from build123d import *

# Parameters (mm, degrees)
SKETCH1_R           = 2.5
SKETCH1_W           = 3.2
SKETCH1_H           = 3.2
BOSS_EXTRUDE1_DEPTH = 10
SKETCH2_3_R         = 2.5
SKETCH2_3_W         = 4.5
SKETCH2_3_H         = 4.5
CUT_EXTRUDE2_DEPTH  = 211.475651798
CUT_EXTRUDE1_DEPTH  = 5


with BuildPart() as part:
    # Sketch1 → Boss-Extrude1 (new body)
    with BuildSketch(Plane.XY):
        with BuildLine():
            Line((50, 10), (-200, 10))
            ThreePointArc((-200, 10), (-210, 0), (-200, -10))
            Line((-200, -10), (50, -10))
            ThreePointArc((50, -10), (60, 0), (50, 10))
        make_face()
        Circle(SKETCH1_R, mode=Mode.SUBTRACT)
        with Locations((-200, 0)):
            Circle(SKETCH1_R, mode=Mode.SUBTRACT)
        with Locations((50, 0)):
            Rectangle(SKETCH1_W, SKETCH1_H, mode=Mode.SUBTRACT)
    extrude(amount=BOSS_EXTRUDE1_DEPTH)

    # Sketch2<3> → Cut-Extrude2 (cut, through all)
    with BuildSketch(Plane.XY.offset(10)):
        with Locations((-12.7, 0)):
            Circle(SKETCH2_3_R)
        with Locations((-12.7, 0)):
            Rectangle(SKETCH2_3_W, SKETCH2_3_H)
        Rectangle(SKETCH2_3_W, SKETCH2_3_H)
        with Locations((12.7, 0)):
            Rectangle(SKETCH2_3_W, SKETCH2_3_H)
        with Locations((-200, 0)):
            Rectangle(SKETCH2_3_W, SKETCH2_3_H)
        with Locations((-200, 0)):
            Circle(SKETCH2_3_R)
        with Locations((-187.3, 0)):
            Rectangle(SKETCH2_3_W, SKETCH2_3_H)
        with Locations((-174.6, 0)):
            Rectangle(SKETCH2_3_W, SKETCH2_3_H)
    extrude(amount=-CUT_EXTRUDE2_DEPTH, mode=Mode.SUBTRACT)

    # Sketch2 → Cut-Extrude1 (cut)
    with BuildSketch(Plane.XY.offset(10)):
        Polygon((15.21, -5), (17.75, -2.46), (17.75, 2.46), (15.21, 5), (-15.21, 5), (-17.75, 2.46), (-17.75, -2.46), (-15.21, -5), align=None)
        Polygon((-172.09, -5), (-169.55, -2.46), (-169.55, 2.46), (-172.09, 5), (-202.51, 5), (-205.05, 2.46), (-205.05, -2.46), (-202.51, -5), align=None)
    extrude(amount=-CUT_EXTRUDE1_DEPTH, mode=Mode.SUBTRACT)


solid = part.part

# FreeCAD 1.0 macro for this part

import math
import FreeCAD as App
import Part
import Sketcher
from FreeCAD import Vector

doc = App.newDocument("Part")
body = doc.addObject("PartDesign::Body", "Body")

# Sketch on XY plane
sketch1 = doc.addObject("Sketcher::SketchObject", "Sketch")
body.addObject(sketch1)
sketch1.AttachmentSupport = (doc.XY_Plane, [""])
sketch1.MapMode = "FlatFace"
sketch1.addGeometry([
    Part.LineSegment(Vector(50, 10, 0), Vector(-200, 10, 0)),  # 0
    Part.ArcOfCircle(Part.Circle(Vector(-200, 0, 0), Vector(0, 0, 1), 10), math.radians(90), math.radians(270)),  # 1
    Part.LineSegment(Vector(-200, -10, 0), Vector(50, -10, 0)),  # 2
    Part.ArcOfCircle(Part.Circle(Vector(50, 0, 0), Vector(0, 0, 1), 10), math.radians(-90), math.radians(90)),  # 3
    Part.Circle(Vector(-200, 0, 0), Vector(0, 0, 1), 2.5),  # 4
    Part.Circle(Vector(0, 0, 0), Vector(0, 0, 1), 2.5),  # 5
    Part.LineSegment(Vector(51.6, -1.6, 0), Vector(48.4, -1.6, 0)),  # 6
    Part.LineSegment(Vector(48.4, -1.6, 0), Vector(48.4, 1.6, 0)),  # 7
    Part.LineSegment(Vector(48.4, 1.6, 0), Vector(51.6, 1.6, 0)),  # 8
    Part.LineSegment(Vector(51.6, 1.6, 0), Vector(51.6, -1.6, 0)),  # 9
], False)
sketch1.addConstraint([
    Sketcher.Constraint("Tangent", 0, 2, 1, 1),
    Sketcher.Constraint("Tangent", 1, 2, 2, 1),
    Sketcher.Constraint("Tangent", 2, 2, 3, 1),
    Sketcher.Constraint("Tangent", 3, 2, 0, 1),
    Sketcher.Constraint("Coincident", 6, 2, 7, 1),
    Sketcher.Constraint("Coincident", 7, 2, 8, 1),
    Sketcher.Constraint("Coincident", 8, 2, 9, 1),
    Sketcher.Constraint("Coincident", 9, 2, 6, 1),
    Sketcher.Constraint("Horizontal", 0),
    Sketcher.Constraint("Horizontal", 2),
    Sketcher.Constraint("Horizontal", 6),
    Sketcher.Constraint("Vertical", 7),
    Sketcher.Constraint("Horizontal", 8),
    Sketcher.Constraint("Vertical", 9),
    Sketcher.Constraint("Coincident", 5, 3, -1, 1),
    Sketcher.Constraint("Coincident", 4, 3, 1, 3),
    Sketcher.Constraint("Equal", 4, 5),
    Sketcher.Constraint("PointOnObject", 1, 3, -1),
    Sketcher.Constraint("Equal", 8, 7),
    Sketcher.Constraint("Diameter", 4, 5.0),
    Sketcher.Constraint("Radius", 1, 10.0),
    Sketcher.Constraint("DistanceX", 0, 2, 0, 1, 250.0),
    Sketcher.Constraint("DistanceX", 6, 2, 6, 1, 3.2),
    Sketcher.Constraint("DistanceX", 1, 3, -1, 1, 200.0),
    Sketcher.Constraint("DistanceX", -1, 1, 6, 2, 48.4),
    Sketcher.Constraint("DistanceY", 6, 2, -1, 1, 1.6),
])
pad1 = doc.addObject("PartDesign::Pad", "Pad")
body.addObject(pad1)
pad1.Profile = sketch1
pad1.Length = 10

# Sketch on XY plane
sketch2 = doc.addObject("Sketcher::SketchObject", "Sketch001")
body.addObject(sketch2)
sketch2.AttachmentSupport = (doc.XY_Plane, [""])
sketch2.MapMode = "FlatFace"
sketch2.AttachmentOffset = App.Placement(Vector(0, 0, 10), App.Rotation())
sketch2.addGeometry([
    Part.ArcOfCircle(Part.Circle(Vector(-12.7, 0, 0), Vector(0, 0, 1), 2.5), math.radians(-26), math.radians(26)),  # 0
    Part.LineSegment(Vector(-10.4, 1.1, 0), Vector(-10.4, 2.2, 0)),  # 1
    Part.LineSegment(Vector(-10.4, 2.2, 0), Vector(-11.6, 2.2, 0)),  # 2
    Part.ArcOfCircle(Part.Circle(Vector(-12.7, 0, 0), Vector(0, 0, 1), 2.5), math.radians(64), math.radians(116)),  # 3
    Part.LineSegment(Vector(-13.8, 2.2, 0), Vector(-14.9, 2.2, 0)),  # 4
    Part.LineSegment(Vector(-14.9, 2.2, 0), Vector(-14.9, 1.1, 0)),  # 5
    Part.ArcOfCircle(Part.Circle(Vector(-12.7, 0, 0), Vector(0, 0, 1), 2.5), math.radians(154), math.radians(206)),  # 6
    Part.LineSegment(Vector(-14.9, -1.1, 0), Vector(-14.9, -2.2, 0)),  # 7
    Part.LineSegment(Vector(-14.9, -2.2, 0), Vector(-13.8, -2.2, 0)),  # 8
    Part.ArcOfCircle(Part.Circle(Vector(-12.7, 0, 0), Vector(0, 0, 1), 2.5), math.radians(-116), math.radians(-64)),  # 9
    Part.LineSegment(Vector(-11.6, -2.2, 0), Vector(-10.4, -2.2, 0)),  # 10
    Part.LineSegment(Vector(-10.4, -2.2, 0), Vector(-10.4, -1.1, 0)),  # 11
    Part.LineSegment(Vector(-2.2, 2.2, 0), Vector(-2.2, -2.2, 0)),  # 12
    Part.LineSegment(Vector(-2.2, -2.2, 0), Vector(2.2, -2.2, 0)),  # 13
    Part.LineSegment(Vector(2.2, -2.2, 0), Vector(2.2, 2.2, 0)),  # 14
    Part.LineSegment(Vector(2.2, 2.2, 0), Vector(-2.2, 2.2, 0)),  # 15
    Part.LineSegment(Vector(10.4, 2.2, 0), Vector(10.4, -2.2, 0)),  # 16
    Part.LineSegment(Vector(10.4, -2.2, 0), Vector(14.9, -2.2, 0)),  # 17
    Part.LineSegment(Vector(14.9, -2.2, 0), Vector(14.9, 2.2, 0)),  # 18
    Part.LineSegment(Vector(14.9, 2.2, 0), Vector(10.4, 2.2, 0)),  # 19
    Part.LineSegment(Vector(-202.2, -1.1, 0), Vector(-202.2, -2.2, 0)),  # 20
    Part.LineSegment(Vector(-202.2, -2.2, 0), Vector(-201.1, -2.2, 0)),  # 21
    Part.ArcOfCircle(Part.Circle(Vector(-200, 0, 0), Vector(0, 0, 1), 2.5), math.radians(-116), math.radians(-64)),  # 22
    Part.LineSegment(Vector(-198.9, -2.2, 0), Vector(-197.8, -2.2, 0)),  # 23
    Part.LineSegment(Vector(-197.8, -2.2, 0), Vector(-197.8, -1.1, 0)),  # 24
    Part.ArcOfCircle(Part.Circle(Vector(-200, 0, 0), Vector(0, 0, 1), 2.5), math.radians(-26), math.radians(26)),  # 25
    Part.LineSegment(Vector(-197.8, 1.1, 0), Vector(-197.8, 2.2, 0)),  # 26
    Part.LineSegment(Vector(-197.8, 2.2, 0), Vector(-198.9, 2.2, 0)),  # 27
    Part.ArcOfCircle(Part.Circle(Vector(-200, 0, 0), Vector(0, 0, 1), 2.5), math.radians(64), math.radians(116)),  # 28
    Part.LineSegment(Vector(-201.1, 2.2, 0), Vector(-202.2, 2.2, 0)),  # 29
    Part.LineSegment(Vector(-202.2, 2.2, 0), Vector(-202.2, 1.1, 0)),  # 30
    Part.ArcOfCircle(Part.Circle(Vector(-200, 0, 0), Vector(0, 0, 1), 2.5), math.radians(154), math.radians(206)),  # 31
    Part.LineSegment(Vector(-189.6, 2.2, 0), Vector(-189.6, -2.2, 0)),  # 32
    Part.LineSegment(Vector(-189.6, -2.2, 0), Vector(-185.1, -2.2, 0)),  # 33
    Part.LineSegment(Vector(-185.1, -2.2, 0), Vector(-185.1, 2.2, 0)),  # 34
    Part.LineSegment(Vector(-185.1, 2.2, 0), Vector(-189.6, 2.2, 0)),  # 35
    Part.LineSegment(Vector(-176.8, 2.2, 0), Vector(-176.8, -2.2, 0)),  # 36
    Part.LineSegment(Vector(-176.8, -2.2, 0), Vector(-172.3, -2.2, 0)),  # 37
    Part.LineSegment(Vector(-172.3, -2.2, 0), Vector(-172.3, 2.2, 0)),  # 38
    Part.LineSegment(Vector(-172.3, 2.2, 0), Vector(-176.8, 2.2, 0)),  # 39
], False)
sketch2.addConstraint([
    Sketcher.Constraint("Coincident", 0, 2, 1, 1),
    Sketcher.Constraint("Coincident", 1, 2, 2, 1),
    Sketcher.Constraint("Coincident", 2, 2, 3, 1),
    Sketcher.Constraint("Coincident", 3, 2, 4, 1),
    Sketcher.Constraint("Coincident", 4, 2, 5, 1),
    Sketcher.Constraint("Coincident", 5, 2, 6, 1),
    Sketcher.Constraint("Coincident", 6, 2, 7, 1),
    Sketcher.Constraint("Coincident", 7, 2, 8, 1),
    Sketcher.Constraint("Coincident", 8, 2, 9, 1),
    Sketcher.Constraint("Coincident", 9, 2, 10, 1),
    Sketcher.Constraint("Coincident", 10, 2, 11, 1),
    Sketcher.Constraint("Coincident", 11, 2, 0, 1),
    Sketcher.Constraint("Coincident", 12, 2, 13, 1),
    Sketcher.Constraint("Coincident", 13, 2, 14, 1),
    Sketcher.Constraint("Coincident", 14, 2, 15, 1),
    Sketcher.Constraint("Coincident", 15, 2, 12, 1),
    Sketcher.Constraint("Coincident", 16, 2, 17, 1),
    Sketcher.Constraint("Coincident", 17, 2, 18, 1),
    Sketcher.Constraint("Coincident", 18, 2, 19, 1),
    Sketcher.Constraint("Coincident", 19, 2, 16, 1),
    Sketcher.Constraint("Coincident", 20, 2, 21, 1),
    Sketcher.Constraint("Coincident", 21, 2, 22, 1),
    Sketcher.Constraint("Coincident", 22, 2, 23, 1),
    Sketcher.Constraint("Coincident", 23, 2, 24, 1),
    Sketcher.Constraint("Coincident", 24, 2, 25, 1),
    Sketcher.Constraint("Coincident", 25, 2, 26, 1),
    Sketcher.Constraint("Coincident", 26, 2, 27, 1),
    Sketcher.Constraint("Coincident", 27, 2, 28, 1),
    Sketcher.Constraint("Coincident", 28, 2, 29, 1),
    Sketcher.Constraint("Coincident", 29, 2, 30, 1),
    Sketcher.Constraint("Coincident", 30, 2, 31, 1),
    Sketcher.Constraint("Coincident", 31, 2, 20, 1),
    Sketcher.Constraint("Coincident", 32, 2, 33, 1),
    Sketcher.Constraint("Coincident", 33, 2, 34, 1),
    Sketcher.Constraint("Coincident", 34, 2, 35, 1),
    Sketcher.Constraint("Coincident", 35, 2, 32, 1),
    Sketcher.Constraint("Coincident", 36, 2, 37, 1),
    Sketcher.Constraint("Coincident", 37, 2, 38, 1),
    Sketcher.Constraint("Coincident", 38, 2, 39, 1),
    Sketcher.Constraint("Coincident", 39, 2, 36, 1),
    Sketcher.Constraint("Vertical", 1),
    Sketcher.Constraint("Horizontal", 2),
    Sketcher.Constraint("Horizontal", 4),
    Sketcher.Constraint("Vertical", 5),
    Sketcher.Constraint("Vertical", 7),
    Sketcher.Constraint("Horizontal", 8),
    Sketcher.Constraint("Horizontal", 10),
    Sketcher.Constraint("Vertical", 11),
    Sketcher.Constraint("Vertical", 12),
    Sketcher.Constraint("Horizontal", 13),
    Sketcher.Constraint("Vertical", 14),
    Sketcher.Constraint("Horizontal", 15),
    Sketcher.Constraint("Vertical", 16),
    Sketcher.Constraint("Horizontal", 17),
    Sketcher.Constraint("Vertical", 18),
    Sketcher.Constraint("Horizontal", 19),
    Sketcher.Constraint("Vertical", 20),
    Sketcher.Constraint("Horizontal", 21),
    Sketcher.Constraint("Horizontal", 23),
    Sketcher.Constraint("Vertical", 24),
    Sketcher.Constraint("Vertical", 26),
    Sketcher.Constraint("Horizontal", 27),
    Sketcher.Constraint("Horizontal", 29),
    Sketcher.Constraint("Vertical", 30),
    Sketcher.Constraint("Vertical", 32),
    Sketcher.Constraint("Horizontal", 33),
    Sketcher.Constraint("Vertical", 34),
    Sketcher.Constraint("Horizontal", 35),
    Sketcher.Constraint("Vertical", 36),
    Sketcher.Constraint("Horizontal", 37),
    Sketcher.Constraint("Vertical", 38),
    Sketcher.Constraint("Horizontal", 39),
    Sketcher.Constraint("Coincident", 3, 3, 0, 3),
    Sketcher.Constraint("Coincident", 6, 3, 0, 3),
    Sketcher.Constraint("Coincident", 9, 3, 0, 3),
    Sketcher.Constraint("Coincident", 25, 3, 22, 3),
    Sketcher.Constraint("Coincident", 28, 3, 22, 3),
    Sketcher.Constraint("Coincident", 31, 3, 22, 3),
    Sketcher.Constraint("Equal", 0, 3),
    Sketcher.Constraint("Equal", 3, 6),
    Sketcher.Constraint("Equal", 6, 9),
    Sketcher.Constraint("Equal", 9, 22),
    Sketcher.Constraint("Equal", 22, 25),
    Sketcher.Constraint("Equal", 25, 28),
    Sketcher.Constraint("Equal", 28, 31),
    Sketcher.Constraint("Symmetric", 12, 2, 14, 2, -1, 1),
    Sketcher.Constraint("Symmetric", 1, 2, 16, 2, -1, 1),
    Sketcher.Constraint("Symmetric", 4, 2, 17, 2, -1, 1),
    Sketcher.Constraint("Symmetric", 7, 2, 18, 2, -1, 1),
    Sketcher.Constraint("Symmetric", 10, 2, 19, 2, -1, 1),
    Sketcher.Constraint("Symmetric", 3, 2, 8, 2, -1),
    Sketcher.Constraint("Symmetric", 24, 2, 25, 2, -1),
    Sketcher.Constraint("Symmetric", 20, 2, 29, 2, -1),
    Sketcher.Constraint("Horizontal", 0, 2, 5, 2),
    Sketcher.Constraint("Horizontal", 10, 2, 12, 2),
    Sketcher.Constraint("Horizontal", 17, 2, 20, 2),
    Sketcher.Constraint("Horizontal", 21, 2, 22, 2),
    Sketcher.Constraint("Horizontal", 11, 2, 24, 2),
    Sketcher.Constraint("Horizontal", 19, 2, 26, 2),
    Sketcher.Constraint("Horizontal", 25, 2, 30, 2),
    Sketcher.Constraint("Horizontal", 23, 2, 32, 2),
    Sketcher.Constraint("Horizontal", 29, 2, 34, 2),
    Sketcher.Constraint("Horizontal", 33, 2, 36, 2),
    Sketcher.Constraint("Horizontal", 35, 2, 38, 2),
    Sketcher.Constraint("Equal", 15, 17),
    Sketcher.Constraint("Equal", 19, 33),
    Sketcher.Constraint("Equal", 35, 37),
    Sketcher.Constraint("Equal", 29, 1),
    Sketcher.Constraint("Radius", 0, 2.5),
    Sketcher.Constraint("DistanceX", 13, 1, 13, 2, 4.5),
    Sketcher.Constraint("DistanceX", 22, 3, -1, 1, 200.0),
    Sketcher.Constraint("DistanceX", 0, 3, -1, 1, 12.7),
    Sketcher.Constraint("DistanceX", 23, 2, 32, 2, 8.2),
    Sketcher.Constraint("DistanceX", 33, 2, 36, 2, 8.2),
])
pocket1 = doc.addObject("PartDesign::Pocket", "Pocket")
body.addObject(pocket1)
pocket1.Profile = sketch2
pocket1.Type = "ThroughAll"

# Sketch on XY plane
sketch3 = doc.addObject("Sketcher::SketchObject", "Sketch002")
body.addObject(sketch3)
sketch3.AttachmentSupport = (doc.XY_Plane, [""])
sketch3.MapMode = "FlatFace"
sketch3.AttachmentOffset = App.Placement(Vector(0, 0, 10), App.Rotation())
sketch3.addGeometry([
    Part.LineSegment(Vector(15.2, -5, 0), Vector(17.8, -2.5, 0)),  # 0
    Part.LineSegment(Vector(17.8, -2.5, 0), Vector(17.8, 2.5, 0)),  # 1
    Part.LineSegment(Vector(17.8, 2.5, 0), Vector(15.2, 5, 0)),  # 2
    Part.LineSegment(Vector(15.2, 5, 0), Vector(-15.2, 5, 0)),  # 3
    Part.LineSegment(Vector(-15.2, 5, 0), Vector(-17.8, 2.5, 0)),  # 4
    Part.LineSegment(Vector(-17.8, 2.5, 0), Vector(-17.8, -2.5, 0)),  # 5
    Part.LineSegment(Vector(-17.8, -2.5, 0), Vector(-15.2, -5, 0)),  # 6
    Part.LineSegment(Vector(-15.2, -5, 0), Vector(15.2, -5, 0)),  # 7
    Part.LineSegment(Vector(-172.1, -5, 0), Vector(-169.6, -2.5, 0)),  # 8
    Part.LineSegment(Vector(-169.6, -2.5, 0), Vector(-169.6, 2.5, 0)),  # 9
    Part.LineSegment(Vector(-169.6, 2.5, 0), Vector(-172.1, 5, 0)),  # 10
    Part.LineSegment(Vector(-172.1, 5, 0), Vector(-202.5, 5, 0)),  # 11
    Part.LineSegment(Vector(-202.5, 5, 0), Vector(-205.1, 2.5, 0)),  # 12
    Part.LineSegment(Vector(-205.1, 2.5, 0), Vector(-205.1, -2.5, 0)),  # 13
    Part.LineSegment(Vector(-205.1, -2.5, 0), Vector(-202.5, -5, 0)),  # 14
    Part.LineSegment(Vector(-202.5, -5, 0), Vector(-172.1, -5, 0)),  # 15
], False)
sketch3.addConstraint([
    Sketcher.Constraint("Coincident", 0, 2, 1, 1),
    Sketcher.Constraint("Coincident", 1, 2, 2, 1),
    Sketcher.Constraint("Coincident", 2, 2, 3, 1),
    Sketcher.Constraint("Coincident", 3, 2, 4, 1),
    Sketcher.Constraint("Coincident", 4, 2, 5, 1),
    Sketcher.Constraint("Coincident", 5, 2, 6, 1),
    Sketcher.Constraint("Coincident", 6, 2, 7, 1),
    Sketcher.Constraint("Coincident", 7, 2, 0, 1),
    Sketcher.Constraint("Coincident", 8, 2, 9, 1),
    Sketcher.Constraint("Coincident", 9, 2, 10, 1),
    Sketcher.Constraint("Coincident", 10, 2, 11, 1),
    Sketcher.Constraint("Coincident", 11, 2, 12, 1),
    Sketcher.Constraint("Coincident", 12, 2, 13, 1),
    Sketcher.Constraint("Coincident", 13, 2, 14, 1),
    Sketcher.Constraint("Coincident", 14, 2, 15, 1),
    Sketcher.Constraint("Coincident", 15, 2, 8, 1),
    Sketcher.Constraint("Vertical", 1),
    Sketcher.Constraint("Horizontal", 3),
    Sketcher.Constraint("Vertical", 5),
    Sketcher.Constraint("Horizontal", 7),
    Sketcher.Constraint("Vertical", 9),
    Sketcher.Constraint("Horizontal", 11),
    Sketcher.Constraint("Vertical", 13),
    Sketcher.Constraint("Horizontal", 15),
    Sketcher.Constraint("Symmetric", 0, 2, 4, 2, -1, 1),
    Sketcher.Constraint("Symmetric", 2, 2, 6, 2, -1, 1),
    Sketcher.Constraint("Symmetric", 11, 2, 14, 2, -1),
    Sketcher.Constraint("Perpendicular", 0, 2),
    Sketcher.Constraint("Perpendicular", 2, 4),
    Sketcher.Constraint("Perpendicular", 4, 6),
    Sketcher.Constraint("Perpendicular", 6, 8),
    Sketcher.Constraint("Perpendicular", 8, 10),
    Sketcher.Constraint("Perpendicular", 10, 12),
    Sketcher.Constraint("Perpendicular", 12, 14),
    Sketcher.Constraint("Horizontal", 1, 2, 4, 2),
    Sketcher.Constraint("Horizontal", 5, 2, 8, 2),
    Sketcher.Constraint("Horizontal", 4, 2, 9, 2),
    Sketcher.Constraint("Horizontal", 3, 2, 10, 2),
    Sketcher.Constraint("Horizontal", 9, 2, 12, 2),
    Sketcher.Constraint("Horizontal", 8, 2, 13, 2),
    Sketcher.Constraint("Equal", 7, 11),
    Sketcher.Constraint("DistanceY", -1, 1, 2, 2, 5.0),
    Sketcher.Constraint("DistanceX", 3, 2, 3, 1, 30.42),
    Sketcher.Constraint("DistanceY", 1, 1, 1, 2, 4.92),
    Sketcher.Constraint("DistanceX", 8, 2, 5, 2, 151.8),
])
pocket2 = doc.addObject("PartDesign::Pocket", "Pocket001")
body.addObject(pocket2)
pocket2.Profile = sketch3
pocket2.Length = 5

doc.recompute()
